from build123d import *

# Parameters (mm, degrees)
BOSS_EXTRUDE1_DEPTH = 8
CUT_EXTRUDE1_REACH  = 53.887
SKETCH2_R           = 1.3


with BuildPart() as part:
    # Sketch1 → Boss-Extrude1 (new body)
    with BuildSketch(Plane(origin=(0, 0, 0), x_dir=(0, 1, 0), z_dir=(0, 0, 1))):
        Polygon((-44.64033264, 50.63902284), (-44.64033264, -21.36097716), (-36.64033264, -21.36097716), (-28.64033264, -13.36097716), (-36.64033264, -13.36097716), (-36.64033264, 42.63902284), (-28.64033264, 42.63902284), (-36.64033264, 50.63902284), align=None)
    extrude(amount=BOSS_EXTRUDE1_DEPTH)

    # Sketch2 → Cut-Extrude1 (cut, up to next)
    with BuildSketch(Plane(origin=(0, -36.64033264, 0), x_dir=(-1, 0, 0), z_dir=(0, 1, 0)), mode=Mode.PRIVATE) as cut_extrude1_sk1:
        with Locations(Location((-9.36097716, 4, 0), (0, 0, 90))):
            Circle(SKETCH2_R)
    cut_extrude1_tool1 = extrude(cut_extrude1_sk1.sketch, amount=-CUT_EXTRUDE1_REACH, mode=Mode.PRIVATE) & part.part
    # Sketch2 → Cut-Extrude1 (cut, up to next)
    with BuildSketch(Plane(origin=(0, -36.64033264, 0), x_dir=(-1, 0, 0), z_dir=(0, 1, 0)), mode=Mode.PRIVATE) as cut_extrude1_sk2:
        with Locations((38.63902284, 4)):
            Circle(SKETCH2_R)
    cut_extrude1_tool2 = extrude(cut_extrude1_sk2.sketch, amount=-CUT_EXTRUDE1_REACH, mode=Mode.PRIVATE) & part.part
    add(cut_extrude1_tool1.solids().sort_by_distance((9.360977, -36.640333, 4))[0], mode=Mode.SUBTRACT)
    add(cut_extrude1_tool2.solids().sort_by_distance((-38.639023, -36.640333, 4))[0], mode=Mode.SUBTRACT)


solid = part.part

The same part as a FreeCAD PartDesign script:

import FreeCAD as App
import Part
import Sketcher
from FreeCAD import Vector
Q = App.Units.Quantity

doc = App.newDocument("Part")
body = doc.addObject("PartDesign::Body", "Body")

# Sketch on XY plane
sketch1 = body.newObject("Sketcher::SketchObject", "Sketch")
sketch1.AttachmentSupport = (doc.getObject("XY_Plane"), [""])
sketch1.MapMode = "FlatFace"
sketch1.addGeometry(Part.LineSegment(Vector(-51, -45, 0), Vector(21, -45, 0)), False)
sketch1.addGeometry(Part.LineSegment(Vector(21, -45, 0), Vector(21, -37, 0)), False)
sketch1.addGeometry(Part.LineSegment(Vector(21, -37, 0), Vector(13, -29, 0)), False)
sketch1.addGeometry(Part.LineSegment(Vector(13, -29, 0), Vector(13, -37, 0)), False)
sketch1.addGeometry(Part.LineSegment(Vector(13, -37, 0), Vector(-43, -37, 0)), False)
sketch1.addGeometry(Part.LineSegment(Vector(-43, -37, 0), Vector(-43, -29, 0)), False)
sketch1.addGeometry(Part.LineSegment(Vector(-43, -29, 0), Vector(-51, -37, 0)), False)
sketch1.addGeometry(Part.LineSegment(Vector(-51, -37, 0), Vector(-51, -45, 0)), False)
sketch1.addConstraint(Sketcher.Constraint("Coincident", 0, 2, 1, 1))
sketch1.addConstraint(Sketcher.Constraint("Coincident", 1, 2, 2, 1))
sketch1.addConstraint(Sketcher.Constraint("Coincident", 2, 2, 3, 1))
sketch1.addConstraint(Sketcher.Constraint("Coincident", 3, 2, 4, 1))
sketch1.addConstraint(Sketcher.Constraint("Coincident", 4, 2, 5, 1))
sketch1.addConstraint(Sketcher.Constraint("Coincident", 5, 2, 6, 1))
sketch1.addConstraint(Sketcher.Constraint("Coincident", 6, 2, 7, 1))
sketch1.addConstraint(Sketcher.Constraint("Coincident", 7, 2, 0, 1))
sketch1.addConstraint(Sketcher.Constraint("Horizontal", 0))
sketch1.addConstraint(Sketcher.Constraint("Vertical", 1))
sketch1.addConstraint(Sketcher.Constraint("Vertical", 3))
sketch1.addConstraint(Sketcher.Constraint("Horizontal", 4))
sketch1.addConstraint(Sketcher.Constraint("Vertical", 5))
sketch1.addConstraint(Sketcher.Constraint("Vertical", 7))
sketch1.addConstraint(Sketcher.Constraint("Perpendicular", 2, 6))
sketch1.addConstraint(Sketcher.Constraint("Horizontal", 1, 2, 3, 2))
sketch1.addConstraint(Sketcher.Constraint("Horizontal", 2, 2, 5, 2))
sketch1.addConstraint(Sketcher.Constraint("Horizontal", 4, 2, 6, 2))
sketch1.addConstraint(Sketcher.Constraint("Equal", 1, 3))
sketch1.addConstraint(Sketcher.Constraint("Equal", 2, 6))
sketch1.addConstraint(Sketcher.Constraint("DistanceX", 0, 1, 0, 2, Q("72 mm")))
sketch1.addConstraint(Sketcher.Constraint("DistanceX", 4, 2, 4, 1, Q("56 mm")))
sketch1.addConstraint(Sketcher.Constraint("DistanceX", -1, 1, 0, 2, Q("21.360977 mm")))
sketch1.addConstraint(Sketcher.Constraint("DistanceY", 0, 2, -1, 1, Q("44.640333 mm")))
pad1 = body.newObject("PartDesign::Pad", "Pad")
pad1.Profile = sketch1
pad1.Length = 8

# Sketch on XZ plane
sketch2 = body.newObject("Sketcher::SketchObject", "Sketch001")
sketch2.AttachmentSupport = (doc.getObject("XZ_Plane"), [""])
sketch2.MapMode = "FlatFace"
sketch2.AttachmentOffset = App.Placement(Vector(0, 0, 36.640333), App.Rotation())
sketch2.addGeometry(Part.Circle(Vector(9.4, 4, 0), Vector(0, 0, 1), 1.3), False)
sketch2.addConstraint(Sketcher.Constraint("Diameter", 0, Q("2.6 mm")))
sketch2.addConstraint(Sketcher.Constraint("DistanceY", -1, 1, 0, 3, Q("4 mm")))
sketch2.addConstraint(Sketcher.Constraint("DistanceX", -1, 1, 0, 3, Q("9.360977 mm")))
pocket1 = body.newObject("PartDesign::Pocket", "Pocket")
pocket1.Profile = sketch2
pocket1.Type = "UpToFirst"
pocket1.Reversed = True

# Sketch on XZ plane
sketch3 = body.newObject("Sketcher::SketchObject", "Sketch002")
sketch3.AttachmentSupport = (doc.getObject("XZ_Plane"), [""])
sketch3.MapMode = "FlatFace"
sketch3.AttachmentOffset = App.Placement(Vector(0, 0, 36.640333), App.Rotation())
sketch3.addGeometry(Part.Circle(Vector(-38.6, 4, 0), Vector(0, 0, 1), 1.3), False)
sketch3.addConstraint(Sketcher.Constraint("Diameter", 0, Q("2.6 mm")))
sketch3.addConstraint(Sketcher.Constraint("DistanceY", -1, 1, 0, 3, Q("4 mm")))
sketch3.addConstraint(Sketcher.Constraint("DistanceX", 0, 3, -1, 1, Q("38.639023 mm")))
pocket2 = body.newObject("PartDesign::Pocket", "Pocket001")
pocket2.Profile = sketch3
pocket2.Type = "UpToFirst"
pocket2.Reversed = True

doc.recompute()
